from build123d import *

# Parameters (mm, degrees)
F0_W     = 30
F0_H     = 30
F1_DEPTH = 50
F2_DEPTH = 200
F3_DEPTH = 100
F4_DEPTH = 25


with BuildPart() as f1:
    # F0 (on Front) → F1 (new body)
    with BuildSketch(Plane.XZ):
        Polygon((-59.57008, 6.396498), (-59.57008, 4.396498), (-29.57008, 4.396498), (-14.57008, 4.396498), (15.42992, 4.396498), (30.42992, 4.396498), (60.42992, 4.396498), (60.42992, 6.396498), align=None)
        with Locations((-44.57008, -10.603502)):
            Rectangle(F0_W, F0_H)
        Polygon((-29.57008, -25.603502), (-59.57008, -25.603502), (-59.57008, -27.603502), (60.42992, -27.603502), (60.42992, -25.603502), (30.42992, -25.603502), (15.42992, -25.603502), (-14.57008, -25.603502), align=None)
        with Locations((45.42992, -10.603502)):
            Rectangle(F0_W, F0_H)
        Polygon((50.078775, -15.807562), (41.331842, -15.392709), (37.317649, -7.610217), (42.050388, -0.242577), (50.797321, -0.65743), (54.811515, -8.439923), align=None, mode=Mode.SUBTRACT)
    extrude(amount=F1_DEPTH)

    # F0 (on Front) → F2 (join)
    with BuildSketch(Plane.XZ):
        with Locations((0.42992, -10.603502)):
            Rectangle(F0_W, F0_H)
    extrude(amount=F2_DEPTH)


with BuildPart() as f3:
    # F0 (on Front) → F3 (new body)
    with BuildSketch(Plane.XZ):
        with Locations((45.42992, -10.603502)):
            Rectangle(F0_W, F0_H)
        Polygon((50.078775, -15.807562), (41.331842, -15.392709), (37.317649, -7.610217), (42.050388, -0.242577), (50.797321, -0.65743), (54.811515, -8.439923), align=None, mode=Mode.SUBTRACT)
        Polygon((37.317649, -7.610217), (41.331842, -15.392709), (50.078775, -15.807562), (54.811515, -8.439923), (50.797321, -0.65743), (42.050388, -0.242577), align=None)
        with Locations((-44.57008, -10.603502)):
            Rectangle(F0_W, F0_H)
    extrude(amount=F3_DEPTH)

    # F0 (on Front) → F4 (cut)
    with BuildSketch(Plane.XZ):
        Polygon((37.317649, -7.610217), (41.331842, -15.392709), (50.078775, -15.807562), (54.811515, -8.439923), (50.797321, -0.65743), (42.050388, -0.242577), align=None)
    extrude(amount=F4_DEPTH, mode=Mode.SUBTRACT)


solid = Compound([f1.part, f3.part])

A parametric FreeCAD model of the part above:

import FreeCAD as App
import Part
import Sketcher

V = App.Vector

doc = App.newDocument("Part")
body = doc.addObject("PartDesign::Body", "Body")

sketch1 = body.newObject("Sketcher::SketchObject", "Sketch")
sketch1.AttachmentSupport = (doc.getObject("XZ_Plane"), [""])
sketch1.MapMode = "FlatFace"
sketch1.addGeometry(Part.LineSegment(V(-60, 6, 0), V(-60, -28, 0)), False)
sketch1.addGeometry(Part.LineSegment(V(-60, -28, 0), V(60, -28, 0)), False)
sketch1.addGeometry(Part.LineSegment(V(60, -28, 0), V(60, 6, 0)), False)
sketch1.addGeometry(Part.LineSegment(V(60, 6, 0), V(-60, 6, 0)), False)
sketch1.addGeometry(Part.LineSegment(V(30, -26, 0), V(-30, -26, 0)), False)
sketch1.addGeometry(Part.LineSegment(V(-30, -26, 0), V(-30, 4, 0)), False)
sketch1.addGeometry(Part.LineSegment(V(-30, 4, 0), V(30, 4, 0)), False)
sketch1.addGeometry(Part.LineSegment(V(30, 4, 0), V(30, -26, 0)), False)
sketch1.addGeometry(Part.LineSegment(V(55, -8, 0), V(50, -16, 0)), False)
sketch1.addGeometry(Part.LineSegment(V(50, -16, 0), V(41, -15, 0)), False)
sketch1.addGeometry(Part.LineSegment(V(41, -15, 0), V(37, -8, 0)), False)
sketch1.addGeometry(Part.LineSegment(V(37, -8, 0), V(42, 0, 0)), False)
sketch1.addGeometry(Part.LineSegment(V(42, 0, 0), V(51, -1, 0)), False)
sketch1.addGeometry(Part.LineSegment(V(51, -1, 0), V(55, -8, 0)), False)
sketch1.addConstraint(Sketcher.Constraint("Coincident", 0, 2, 1, 1))
sketch1.addConstraint(Sketcher.Constraint("Coincident", 1, 2, 2, 1))
sketch1.addConstraint(Sketcher.Constraint("Coincident", 2, 2, 3, 1))
sketch1.addConstraint(Sketcher.Constraint("Coincident", 3, 2, 0, 1))
sketch1.addConstraint(Sketcher.Constraint("Coincident", 4, 2, 5, 1))
sketch1.addConstraint(Sketcher.Constraint("Coincident", 5, 2, 6, 1))
sketch1.addConstraint(Sketcher.Constraint("Coincident", 6, 2, 7, 1))
sketch1.addConstraint(Sketcher.Constraint("Coincident", 7, 2, 4, 1))
sketch1.addConstraint(Sketcher.Constraint("Coincident", 8, 2, 9, 1))
sketch1.addConstraint(Sketcher.Constraint("Coincident", 9, 2, 10, 1))
sketch1.addConstraint(Sketcher.Constraint("Coincident", 10, 2, 11, 1))
sketch1.addConstraint(Sketcher.Constraint("Coincident", 11, 2, 12, 1))
sketch1.addConstraint(Sketcher.Constraint("Coincident", 12, 2, 13, 1))
sketch1.addConstraint(Sketcher.Constraint("Coincident", 13, 2, 8, 1))
sketch1.addConstraint(Sketcher.Constraint("Vertical", 0))
sketch1.addConstraint(Sketcher.Constraint("Horizontal", 1))
sketch1.addConstraint(Sketcher.Constraint("Vertical", 2))
sketch1.addConstraint(Sketcher.Constraint("Horizontal", 3))
sketch1.addConstraint(Sketcher.Constraint("Horizontal", 4))
sketch1.addConstraint(Sketcher.Constraint("Vertical", 5))
sketch1.addConstraint(Sketcher.Constraint("Horizontal", 6))
sketch1.addConstraint(Sketcher.Constraint("Vertical", 7))
sketch1.addConstraint(Sketcher.Constraint("Parallel", 8, 11))
sketch1.addConstraint(Sketcher.Constraint("Parallel", 9, 12))
sketch1.addConstraint(Sketcher.Constraint("Parallel", 10, 13))
sketch1.addConstraint(Sketcher.Constraint("Equal", 8, 9))
sketch1.addConstraint(Sketcher.Constraint("Equal", 9, 10))
sketch1.addConstraint(Sketcher.Constraint("Equal", 10, 11))
sketch1.addConstraint(Sketcher.Constraint("DistanceX", 1, 1, 1, 2, 120.0))
sketch1.addConstraint(Sketcher.Constraint("DistanceX", 4, 2, 4, 1, 60.0))
sketch1.addConstraint(Sketcher.Constraint("DistanceY", 0, 2, 0, 1, 34.0))
sketch1.addConstraint(Sketcher.Constraint("DistanceY", 5, 1, 5, 2, 30.0))
sketch1.addConstraint(Sketcher.Constraint("DistanceX", 0, 2, 4, 2, 30.0))
sketch1.addConstraint(Sketcher.Constraint("DistanceY", 0, 2, 4, 2, 2.0))
sketch1.addConstraint(Sketcher.Constraint("DistanceY", 0, 2, -1, 1, 27.603502))
sketch1.addConstraint(Sketcher.Constraint("DistanceX", 12, 2, 2, 2, 9.632599))
sketch1.addConstraint(Sketcher.Constraint("DistanceX", 0, 2, -1, 1, 59.57008))
sketch1.addConstraint(Sketcher.Constraint("DistanceY", 9, 2, -1, 1, 15.392709))
sketch1.addConstraint(Sketcher.Constraint("DistanceX", -1, 1, 10, 2, 37.317649))
sketch1.addConstraint(Sketcher.Constraint("DistanceY", 12, 2, -1, 1, 0.65743))
sketch1.addConstraint(Sketcher.Constraint("DistanceY", 1, 2, 8, 2, 11.79594))
sketch1.addConstraint(Sketcher.Constraint("DistanceX", 9, 2, 1, 2, 19.098078))
pad1 = body.newObject("PartDesign::Pad", "Pad")
pad1.Profile = sketch1
pad1.Length = 50

sketch2 = body.newObject("Sketcher::SketchObject", "Sketch001")
sketch2.AttachmentSupport = (doc.getObject("XZ_Plane"), [""])
sketch2.MapMode = "FlatFace"
sketch2.addGeometry(Part.LineSegment(V(-15, 4, 0), V(-15, -26, 0)), False)
sketch2.addGeometry(Part.LineSegment(V(-15, -26, 0), V(15, -26, 0)), False)
sketch2.addGeometry(Part.LineSegment(V(15, -26, 0), V(15, 4, 0)), False)
sketch2.addGeometry(Part.LineSegment(V(15, 4, 0), V(-15, 4, 0)), False)
sketch2.addConstraint(Sketcher.Constraint("Coincident", 0, 2, 1, 1))
sketch2.addConstraint(Sketcher.Constraint("Coincident", 1, 2, 2, 1))
sketch2.addConstraint(Sketcher.Constraint("Coincident", 2, 2, 3, 1))
sketch2.addConstraint(Sketcher.Constraint("Coincident", 3, 2, 0, 1))
sketch2.addConstraint(Sketcher.Constraint("Vertical", 0))
sketch2.addConstraint(Sketcher.Constraint("Horizontal", 1))
sketch2.addConstraint(Sketcher.Constraint("Vertical", 2))
sketch2.addConstraint(Sketcher.Constraint("Horizontal", 3))
sketch2.addConstraint(Sketcher.Constraint("Equal", 3, 0))
sketch2.addConstraint(Sketcher.Constraint("DistanceX", 1, 1, 1, 2, 30.0))
sketch2.addConstraint(Sketcher.Constraint("DistanceY", 0, 2, -1, 1, 25.603502))
sketch2.addConstraint(Sketcher.Constraint("DistanceX", 0, 2, -1, 1, 14.57008))
pad2 = body.newObject("PartDesign::Pad", "Pad001")
pad2.Profile = sketch2
pad2.Length = 200
body2 = doc.addObject("PartDesign::Body", "Body001")
body2.AllowCompound = True

sketch3 = body2.newObject("Sketcher::SketchObject", "Sketch002")
sketch3.AttachmentSupport = (doc.getObject("XZ_Plane001"), [""])
sketch3.MapMode = "FlatFace"
sketch3.addGeometry(Part.LineSegment(V(30, 4, 0), V(30, -26, 0)), False)
sketch3.addGeometry(Part.LineSegment(V(30, -26, 0), V(60, -26, 0)), False)
sketch3.addGeometry(Part.LineSegment(V(60, -26, 0), V(60, 4, 0)), False)
sketch3.addGeometry(Part.LineSegment(V(60, 4, 0), V(30, 4, 0)), False)
sketch3.addGeometry(Part.LineSegment(V(-60, 4, 0), V(-60, -26, 0)), False)
sketch3.addGeometry(Part.LineSegment(V(-60, -26, 0), V(-30, -26, 0)), False)
sketch3.addGeometry(Part.LineSegment(V(-30, -26, 0), V(-30, 4, 0)), False)
sketch3.addGeometry(Part.LineSegment(V(-30, 4, 0), V(-60, 4, 0)), False)
sketch3.addConstraint(Sketcher.Constraint("Coincident", 0, 2, 1, 1))
sketch3.addConstraint(Sketcher.Constraint("Coincident", 1, 2, 2, 1))
sketch3.addConstraint(Sketcher.Constraint("Coincident", 2, 2, 3, 1))
sketch3.addConstraint(Sketcher.Constraint("Coincident", 3, 2, 0, 1))
sketch3.addConstraint(Sketcher.Constraint("Coincident", 4, 2, 5, 1))
sketch3.addConstraint(Sketcher.Constraint("Coincident", 5, 2, 6, 1))
sketch3.addConstraint(Sketcher.Constraint("Coincident", 6, 2, 7, 1))
sketch3.addConstraint(Sketcher.Constraint("Coincident", 7, 2, 4, 1))
sketch3.addConstraint(Sketcher.Constraint("Vertical", 0))
sketch3.addConstraint(Sketcher.Constraint("Horizontal", 1))
sketch3.addConstraint(Sketcher.Constraint("Vertical", 2))
sketch3.addConstraint(Sketcher.Constraint("Horizontal", 3))
sketch3.addConstraint(Sketcher.Constraint("Vertical", 4))
sketch3.addConstraint(Sketcher.Constraint("Horizontal", 5))
sketch3.addConstraint(Sketcher.Constraint("Vertical", 6))
sketch3.addConstraint(Sketcher.Constraint("Horizontal", 7))
sketch3.addConstraint(Sketcher.Constraint("Horizontal", 1, 2, 4, 2))
sketch3.addConstraint(Sketcher.Constraint("Horizontal", 3, 2, 6, 2))
sketch3.addConstraint(Sketcher.Constraint("Equal", 3, 5))
sketch3.addConstraint(Sketcher.Constraint("Equal", 7, 0))
sketch3.addConstraint(Sketcher.Constraint("DistanceX", 1, 1, 1, 2, 30.0))
sketch3.addConstraint(Sketcher.Constraint("DistanceX", 4, 2, 0, 2, 90.0))
sketch3.addConstraint(Sketcher.Constraint("DistanceY", 0, 2, -1, 1, 25.603502))
sketch3.addConstraint(Sketcher.Constraint("DistanceX", -1, 1, 0, 2, 30.42992))
pad3 = body2.newObject("PartDesign::Pad", "Pad002")
pad3.Profile = sketch3
pad3.Length = 100

sketch4 = body2.newObject("Sketcher::SketchObject", "Sketch003")
sketch4.AttachmentSupport = (doc.getObject("XZ_Plane001"), [""])
sketch4.MapMode = "FlatFace"
sketch4.addGeometry(Part.LineSegment(V(37.317649, -7.610217, 0), V(41.331842, -15.392709, 0)), False)
sketch4.addGeometry(Part.LineSegment(V(41.331842, -15.392709, 0), V(50.078775, -15.807562, 0)), False)
sketch4.addGeometry(Part.LineSegment(V(50.078775, -15.807562, 0), V(54.811515, -8.439923, 0)), False)
sketch4.addGeometry(Part.LineSegment(V(54.811515, -8.439923, 0), V(50.797321, -0.65743, 0)), False)
sketch4.addGeometry(Part.LineSegment(V(50.797321, -0.65743, 0), V(42.050388, -0.242577, 0)), False)
sketch4.addGeometry(Part.LineSegment(V(42.050388, -0.242577, 0), V(37.317649, -7.610217, 0)), False)
sketch4.addConstraint(Sketcher.Constraint("Coincident", 0, 2, 1, 1))
sketch4.addConstraint(Sketcher.Constraint("Coincident", 1, 2, 2, 1))
sketch4.addConstraint(Sketcher.Constraint("Coincident", 2, 2, 3, 1))
sketch4.addConstraint(Sketcher.Constraint("Coincident", 3, 2, 4, 1))
sketch4.addConstraint(Sketcher.Constraint("Coincident", 4, 2, 5, 1))
sketch4.addConstraint(Sketcher.Constraint("Coincident", 5, 2, 0, 1))
sketch4.addConstraint(Sketcher.Constraint("DistanceY", 0, 2, -1, 1, 15.392709))
sketch4.addConstraint(Sketcher.Constraint("DistanceX", -1, 1, 3, 2, 50.797321))
sketch4.addConstraint(Sketcher.Constraint("DistanceY", 3, 2, -1, 1, 0.65743))
sketch4.addConstraint(Sketcher.Constraint("DistanceX", -1, 1, 5, 2, 37.317649))
sketch4.addConstraint(Sketcher.Constraint("DistanceX", 1, 2, 2, 2, 4.73274))
sketch4.addConstraint(Sketcher.Constraint("DistanceY", 1, 2, 2, 2, 7.367639))
sketch4.addConstraint(Sketcher.Constraint("DistanceX", 0, 2, 3, 2, 9.465479))
sketch4.addConstraint(Sketcher.Constraint("DistanceY", 0, 2, 4, 2, 15.150132))
sketch4.addConstraint(Sketcher.Constraint("DistanceX", 5, 2, 4, 2, 4.732739))
sketch4.addConstraint(Sketcher.Constraint("DistanceY", 5, 2, 4, 2, 7.36764))
sketch4.addConstraint(Sketcher.Constraint("Distance", 1, 8.756765))
sketch4.addConstraint(Sketcher.Constraint("Distance", 3, 8.756766))
pocket1 = body2.newObject("PartDesign::Pocket", "Pocket")
pocket1.Profile = sketch4
pocket1.Length = 25
pocket1.Reversed = True

doc.recompute()
